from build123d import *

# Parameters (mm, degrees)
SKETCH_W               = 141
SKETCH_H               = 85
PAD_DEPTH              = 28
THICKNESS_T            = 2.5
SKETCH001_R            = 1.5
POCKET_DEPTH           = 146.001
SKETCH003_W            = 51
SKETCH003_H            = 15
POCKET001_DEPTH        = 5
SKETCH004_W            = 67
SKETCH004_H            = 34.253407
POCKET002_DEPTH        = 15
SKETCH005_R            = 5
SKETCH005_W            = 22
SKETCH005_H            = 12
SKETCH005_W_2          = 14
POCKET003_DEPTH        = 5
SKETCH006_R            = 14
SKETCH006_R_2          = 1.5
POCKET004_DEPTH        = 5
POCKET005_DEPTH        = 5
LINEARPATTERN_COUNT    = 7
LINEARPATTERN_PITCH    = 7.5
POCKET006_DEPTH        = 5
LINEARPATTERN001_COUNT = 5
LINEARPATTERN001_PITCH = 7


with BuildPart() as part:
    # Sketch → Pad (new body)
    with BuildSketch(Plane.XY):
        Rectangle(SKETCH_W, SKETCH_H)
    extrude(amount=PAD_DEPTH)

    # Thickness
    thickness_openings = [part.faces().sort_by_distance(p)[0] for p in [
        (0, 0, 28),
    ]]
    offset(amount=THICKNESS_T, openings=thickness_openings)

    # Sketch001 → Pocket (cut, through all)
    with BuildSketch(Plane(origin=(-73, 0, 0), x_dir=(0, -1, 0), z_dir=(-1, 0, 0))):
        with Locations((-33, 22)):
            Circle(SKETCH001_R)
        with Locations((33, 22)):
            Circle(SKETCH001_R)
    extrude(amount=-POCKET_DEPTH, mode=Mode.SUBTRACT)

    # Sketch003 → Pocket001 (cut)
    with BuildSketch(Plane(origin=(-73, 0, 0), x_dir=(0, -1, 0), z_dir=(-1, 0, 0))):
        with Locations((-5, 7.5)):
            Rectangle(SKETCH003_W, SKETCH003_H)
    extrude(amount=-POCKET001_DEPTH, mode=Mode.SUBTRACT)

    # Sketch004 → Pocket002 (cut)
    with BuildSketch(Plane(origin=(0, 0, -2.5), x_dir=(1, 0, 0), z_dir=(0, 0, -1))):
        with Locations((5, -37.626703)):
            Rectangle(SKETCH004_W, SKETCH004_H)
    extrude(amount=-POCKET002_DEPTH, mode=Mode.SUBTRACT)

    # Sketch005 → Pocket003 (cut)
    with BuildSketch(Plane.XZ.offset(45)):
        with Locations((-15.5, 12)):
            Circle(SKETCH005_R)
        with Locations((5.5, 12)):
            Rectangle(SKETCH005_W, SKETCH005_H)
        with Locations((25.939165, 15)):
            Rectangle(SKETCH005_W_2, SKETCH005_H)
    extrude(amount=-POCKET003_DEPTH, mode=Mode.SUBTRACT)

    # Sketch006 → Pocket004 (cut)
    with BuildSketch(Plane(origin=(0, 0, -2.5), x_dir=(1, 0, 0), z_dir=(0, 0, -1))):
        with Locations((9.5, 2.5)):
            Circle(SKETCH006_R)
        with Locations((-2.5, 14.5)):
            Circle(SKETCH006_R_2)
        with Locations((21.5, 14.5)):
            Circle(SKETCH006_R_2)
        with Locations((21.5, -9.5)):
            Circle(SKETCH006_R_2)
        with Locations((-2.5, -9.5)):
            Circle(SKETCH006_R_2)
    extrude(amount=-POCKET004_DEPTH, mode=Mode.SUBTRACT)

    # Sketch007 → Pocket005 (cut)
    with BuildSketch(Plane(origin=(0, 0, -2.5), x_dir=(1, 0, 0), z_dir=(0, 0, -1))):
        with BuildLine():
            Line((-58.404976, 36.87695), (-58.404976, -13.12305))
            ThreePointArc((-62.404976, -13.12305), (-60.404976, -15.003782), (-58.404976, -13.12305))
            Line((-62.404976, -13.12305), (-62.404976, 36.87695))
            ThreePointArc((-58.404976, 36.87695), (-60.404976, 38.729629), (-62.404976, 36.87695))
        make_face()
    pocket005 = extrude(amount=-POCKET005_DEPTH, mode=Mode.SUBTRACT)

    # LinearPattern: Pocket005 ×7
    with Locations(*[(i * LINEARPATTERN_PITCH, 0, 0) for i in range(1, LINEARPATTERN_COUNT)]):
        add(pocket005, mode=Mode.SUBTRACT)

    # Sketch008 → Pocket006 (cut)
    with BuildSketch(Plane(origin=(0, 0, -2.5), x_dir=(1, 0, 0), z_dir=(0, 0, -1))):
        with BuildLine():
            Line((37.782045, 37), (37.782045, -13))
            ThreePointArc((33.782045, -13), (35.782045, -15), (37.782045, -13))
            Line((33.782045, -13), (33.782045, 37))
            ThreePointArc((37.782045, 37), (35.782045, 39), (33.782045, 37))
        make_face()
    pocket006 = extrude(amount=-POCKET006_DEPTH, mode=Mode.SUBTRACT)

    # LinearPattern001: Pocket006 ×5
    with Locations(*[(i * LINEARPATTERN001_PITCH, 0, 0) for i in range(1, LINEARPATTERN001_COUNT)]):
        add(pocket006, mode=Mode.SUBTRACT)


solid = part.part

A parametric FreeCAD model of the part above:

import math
import FreeCAD as App
import Part
import Sketcher
Q = App.Units.Quantity


def faces_at(feature, points):
    """Names of the faces that lie closest to the given points."""
    faces = feature.Shape.Faces
    near = lambda p: min(range(len(faces)), key=lambda i: faces[i].distToShape(Part.Vertex(*p))[0])
    return sorted({f"Face{near(p) + 1}" for p in points})


def add_polygon(sketch, points):
    """Adds a closed chain of lines whose ends are joined by coincident constraints."""
    first, n = sketch.GeometryCount, len(points)
    for a, b in zip(points, points[1:] + points[:1]):
        sketch.addGeometry(Part.LineSegment(App.Vector(*a, 0), App.Vector(*b, 0)), False)
    for i in range(n):
        sketch.addConstraint(Sketcher.Constraint("Coincident", first + i, 2, first + (i + 1) % n, 1))

doc = App.newDocument("Part")
body = doc.addObject("PartDesign::Body", "Body")

# Sketch on XY plane
sketch1 = body.newObject("Sketcher::SketchObject", "Sketch")
sketch1.AttachmentSupport = (doc.getObject("XY_Plane"), [""])
sketch1.MapMode = "FlatFace"
add_polygon(sketch1, [(-70, 42), (-70, -42), (70, -42), (70, 42)])  # lines 0-3
sketch1.addConstraint(Sketcher.Constraint("Vertical", 0))
sketch1.addConstraint(Sketcher.Constraint("Horizontal", 1))
sketch1.addConstraint(Sketcher.Constraint("Vertical", 2))
sketch1.addConstraint(Sketcher.Constraint("Horizontal", 3))
sketch1.addConstraint(Sketcher.Constraint("Symmetric", 0, 2, 2, 2, -1, 1))
sketch1.addConstraint(Sketcher.Constraint("DistanceX", 1, 1, 1, 2, Q("141 mm")))
sketch1.addConstraint(Sketcher.Constraint("DistanceY", 0, 2, 0, 1, Q("85 mm")))
pad1 = body.newObject("PartDesign::Pad", "Pad")
pad1.Profile = sketch1
pad1.Length = 28
doc.recompute()

thickness = body.newObject("PartDesign::Thickness", "Thickness")
thickness.Base = (pad1, faces_at(pad1, [(0, 0, 28)]))
thickness.Value = 2.5
thickness.Reversed = False
thickness.Join = "Arc"

# Sketch on YZ plane
sketch2 = body.newObject("Sketcher::SketchObject", "Sketch001")
sketch2.AttachmentSupport = (doc.getObject("YZ_Plane"), [""])
sketch2.MapMode = "FlatFace"
sketch2.AttachmentOffset = App.Placement(App.Vector(0, 0, -73), App.Rotation())
sketch2.addGeometry(Part.Circle(App.Vector(33, 22, 0), App.Vector(0, 0, 1), 1.5), False)
sketch2.addGeometry(Part.Circle(App.Vector(-33, 22, 0), App.Vector(0, 0, 1), 1.5), False)
sketch2.addConstraint(Sketcher.Constraint("Equal", 0, 1))
sketch2.addConstraint(Sketcher.Constraint("Symmetric", 0, 3, 1, 3, -2))
sketch2.addConstraint(Sketcher.Constraint("Diameter", 0, Q("3 mm")))
sketch2.addConstraint(Sketcher.Constraint("DistanceX", -1, 1, 0, 3, Q("33 mm")))
sketch2.addConstraint(Sketcher.Constraint("DistanceY", -1, 1, 0, 3, Q("22 mm")))
pocket1 = body.newObject("PartDesign::Pocket", "Pocket")
pocket1.Profile = sketch2
pocket1.Type = "ThroughAll"
pocket1.Reversed = True

# Sketch on YZ plane
sketch3 = body.newObject("Sketcher::SketchObject", "Sketch002")
sketch3.AttachmentSupport = (doc.getObject("YZ_Plane"), [""])
sketch3.MapMode = "FlatFace"
sketch3.AttachmentOffset = App.Placement(App.Vector(0, 0, -73), App.Rotation())
add_polygon(sketch3, [(30, 15), (30, 0), (-20, 0), (-20, 15)])  # lines 0-3
sketch3.addConstraint(Sketcher.Constraint("Vertical", 0))
sketch3.addConstraint(Sketcher.Constraint("Horizontal", 1))
sketch3.addConstraint(Sketcher.Constraint("Vertical", 2))
sketch3.addConstraint(Sketcher.Constraint("Horizontal", 3))
sketch3.addConstraint(Sketcher.Constraint("PointOnObject", 0, 2, -1))
sketch3.addConstraint(Sketcher.Constraint("DistanceX", 1, 2, 1, 1, Q("51 mm")))
sketch3.addConstraint(Sketcher.Constraint("DistanceY", 0, 2, 0, 1, Q("15 mm")))
sketch3.addConstraint(Sketcher.Constraint("DistanceX", -1, 1, 0, 2, Q("30.5 mm")))
pocket2 = body.newObject("PartDesign::Pocket", "Pocket001")
pocket2.Profile = sketch3
pocket2.Length = 5
pocket2.Reversed = True

# Sketch on XY plane
sketch4 = body.newObject("Sketcher::SketchObject", "Sketch003")
sketch4.AttachmentSupport = (doc.getObject("XY_Plane"), [""])
sketch4.MapMode = "FlatFace"
sketch4.AttachmentOffset = App.Placement(App.Vector(0, 0, -2.5), App.Rotation())
add_polygon(sketch4, [(-28, 20), (-28, 55), (38, 55), (38, 20)])  # lines 0-3
sketch4.addConstraint(Sketcher.Constraint("Vertical", 0))
sketch4.addConstraint(Sketcher.Constraint("Horizontal", 1))
sketch4.addConstraint(Sketcher.Constraint("Vertical", 2))
sketch4.addConstraint(Sketcher.Constraint("Horizontal", 3))
sketch4.addConstraint(Sketcher.Constraint("DistanceX", 1, 1, 1, 2, Q("67 mm")))
sketch4.addConstraint(Sketcher.Constraint("DistanceX", 0, 2, -1, 1, Q("28.5 mm")))
sketch4.addConstraint(Sketcher.Constraint("DistanceY", -1, 1, 2, 2, Q("20.5 mm")))
sketch4.addConstraint(Sketcher.Constraint("DistanceY", 0, 1, 0, 2, Q("34.253407 mm")))
pocket3 = body.newObject("PartDesign::Pocket", "Pocket002")
pocket3.Profile = sketch4
pocket3.Length = 15
pocket3.Reversed = True

# Sketch on XZ plane
sketch5 = body.newObject("Sketcher::SketchObject", "Sketch004")
sketch5.AttachmentSupport = (doc.getObject("XZ_Plane"), [""])
sketch5.MapMode = "FlatFace"
sketch5.AttachmentOffset = App.Placement(App.Vector(0, 0, 45), App.Rotation())
sketch5.addGeometry(Part.Circle(App.Vector(-16, 12, 0), App.Vector(0, 0, 1), 5), False)  # 0
add_polygon(sketch5, [(-6, 18), (-6, 6), (16, 6), (16, 18)])  # lines 1-4
add_polygon(sketch5, [(19, 21), (19, 9), (33, 9), (33, 21)])  # lines 5-8
sketch5.addConstraint(Sketcher.Constraint("Vertical", 1))
sketch5.addConstraint(Sketcher.Constraint("Horizontal", 2))
sketch5.addConstraint(Sketcher.Constraint("Vertical", 3))
sketch5.addConstraint(Sketcher.Constraint("Horizontal", 4))
sketch5.addConstraint(Sketcher.Constraint("Vertical", 5))
sketch5.addConstraint(Sketcher.Constraint("Horizontal", 6))
sketch5.addConstraint(Sketcher.Constraint("Vertical", 7))
sketch5.addConstraint(Sketcher.Constraint("Horizontal", 8))
sketch5.addConstraint(Sketcher.Constraint("Equal", 3, 5))
sketch5.addConstraint(Sketcher.Constraint("Diameter", 0, Q("10 mm")))
sketch5.addConstraint(Sketcher.Constraint("DistanceX", 2, 1, 2, 2, Q("22 mm")))
sketch5.addConstraint(Sketcher.Constraint("DistanceX", 6, 1, 6, 2, Q("14 mm")))
sketch5.addConstraint(Sketcher.Constraint("DistanceY", 1, 2, 1, 1, Q("12 mm")))
sketch5.addConstraint(Sketcher.Constraint("DistanceY", -1, 1, 0, 3, Q("12 mm")))
sketch5.addConstraint(Sketcher.Constraint("DistanceY", -1, 1, 1, 2, Q("6 mm")))
sketch5.addConstraint(Sketcher.Constraint("DistanceY", -1, 1, 5, 2, Q("9 mm")))
sketch5.addConstraint(Sketcher.Constraint("DistanceX", 0, 3, 1, 2, Q("10 mm")))
sketch5.addConstraint(Sketcher.Constraint("DistanceX", 0, 3, -1, 1, Q("15.5 mm")))
sketch5.addConstraint(Sketcher.Constraint("DistanceX", -1, 1, 5, 2, Q("18.939165 mm")))
pocket4 = body.newObject("PartDesign::Pocket", "Pocket003")
pocket4.Profile = sketch5
pocket4.Length = 5

# Sketch on XY plane
sketch6 = body.newObject("Sketcher::SketchObject", "Sketch005")
sketch6.AttachmentSupport = (doc.getObject("XY_Plane"), [""])
sketch6.MapMode = "FlatFace"
sketch6.AttachmentOffset = App.Placement(App.Vector(0, 0, -2.5), App.Rotation())
sketch6.addGeometry(Part.Circle(App.Vector(9.5, -2.5, 0), App.Vector(0, 0, 1), 14), False)
sketch6.addGeometry(Part.Circle(App.Vector(-2.5, -14.5, 0), App.Vector(0, 0, 1), 1.5), False)
sketch6.addGeometry(Part.Circle(App.Vector(21.5, -14.5, 0), App.Vector(0, 0, 1), 1.5), False)
sketch6.addGeometry(Part.Circle(App.Vector(21.5, 9.5, 0), App.Vector(0, 0, 1), 1.5), False)
sketch6.addGeometry(Part.Circle(App.Vector(-2.5, 9.5, 0), App.Vector(0, 0, 1), 1.5), False)
sketch6.addConstraint(Sketcher.Constraint("Equal", 1, 2))
sketch6.addConstraint(Sketcher.Constraint("Equal", 2, 3))
sketch6.addConstraint(Sketcher.Constraint("Equal", 3, 4))
sketch6.addConstraint(Sketcher.Constraint("Horizontal", 1, 3, 2, 3))
sketch6.addConstraint(Sketcher.Constraint("Horizontal", 3, 3, 4, 3))
sketch6.addConstraint(Sketcher.Constraint("Vertical", 2, 3, 3, 3))
sketch6.addConstraint(Sketcher.Constraint("Vertical", 1, 3, 4, 3))
sketch6.addConstraint(Sketcher.Constraint("Diameter", 0, Q("28 mm")))
sketch6.addConstraint(Sketcher.Constraint("Diameter", 1, Q("3 mm")))
sketch6.addConstraint(Sketcher.Constraint("DistanceX", 1, 3, 0, 3, Q("12 mm")))
sketch6.addConstraint(Sketcher.Constraint("DistanceY", 1, 3, 0, 3, Q("12 mm")))
sketch6.addConstraint(Sketcher.Constraint("DistanceX", 0, 3, 2, 3, Q("12 mm")))
sketch6.addConstraint(Sketcher.Constraint("DistanceY", 0, 3, 3, 3, Q("12 mm")))
sketch6.addConstraint(Sketcher.Constraint("DistanceX", -1, 1, 0, 3, Q("9.5 mm")))
sketch6.addConstraint(Sketcher.Constraint("DistanceY", 0, 3, -1, 1, Q("2.5 mm")))
pocket5 = body.newObject("PartDesign::Pocket", "Pocket004")
pocket5.Profile = sketch6
pocket5.Length = 5
pocket5.Reversed = True

# Sketch on XY plane
sketch7 = body.newObject("Sketcher::SketchObject", "Sketch006")
sketch7.AttachmentSupport = (doc.getObject("XY_Plane"), [""])
sketch7.MapMode = "FlatFace"
sketch7.AttachmentOffset = App.Placement(App.Vector(0, 0, -2.5), App.Rotation())
sketch7.addGeometry(Part.LineSegment(App.Vector(-58.4, 13.1, 0), App.Vector(-58.4, -36.9, 0)), False)
sketch7.addGeometry(Part.ArcOfCircle(Part.Circle(App.Vector(-60.4, -36.7, 0), App.Vector(0, 0, 1), 2), math.radians(-176), math.radians(-4)), False)
sketch7.addGeometry(Part.LineSegment(App.Vector(-62.4, -36.9, 0), App.Vector(-62.4, 13.1, 0)), False)
sketch7.addGeometry(Part.ArcOfCircle(Part.Circle(App.Vector(-60.4, 13, 0), App.Vector(0, 0, 1), 2), math.radians(4), math.radians(176)), False)
sketch7.addConstraint(Sketcher.Constraint("Coincident", 0, 2, 1, 2))
sketch7.addConstraint(Sketcher.Constraint("Coincident", 1, 1, 2, 1))
sketch7.addConstraint(Sketcher.Constraint("Coincident", 2, 2, 3, 2))
sketch7.addConstraint(Sketcher.Constraint("Coincident", 3, 1, 0, 1))
sketch7.addConstraint(Sketcher.Constraint("Vertical", 0))
sketch7.addConstraint(Sketcher.Constraint("Vertical", 2))
sketch7.addConstraint(Sketcher.Constraint("Horizontal", 0, 2, 1, 1))
sketch7.addConstraint(Sketcher.Constraint("Horizontal", 2, 2, 3, 1))
sketch7.addConstraint(Sketcher.Constraint("DistanceY", 0, 2, 0, 1, Q("50 mm")))
sketch7.addConstraint(Sketcher.Constraint("DistanceY", -1, 1, 3, 3, Q("13 mm")))
sketch7.addConstraint(Sketcher.Constraint("DistanceX", 1, 3, 0, 2, Q("2 mm")))
sketch7.addConstraint(Sketcher.Constraint("Radius", 3, Q("2.003782 mm")))
sketch7.addConstraint(Sketcher.Constraint("Radius", 1, Q("2.005857 mm")))
sketch7.addConstraint(Sketcher.Constraint("DistanceX", 1, 3, -1, 1, Q("60.404976 mm")))
pocket6 = body.newObject("PartDesign::Pocket", "Pocket005")
pocket6.Profile = sketch7
pocket6.Length = 5
pocket6.Reversed = True
doc.recompute()

linearpattern = body.newObject("PartDesign::LinearPattern", "LinearPattern")
linearpattern.Originals = [pocket6]
linearpattern.Direction = (doc.getObject("X_Axis"), [""])
linearpattern.Mode = "offset"
linearpattern.Offset = 7.5
linearpattern.Occurrences = 7
body.Tip = linearpattern

# Sketch on XY plane
sketch8 = body.newObject("Sketcher::SketchObject", "Sketch007")
sketch8.AttachmentSupport = (doc.getObject("XY_Plane"), [""])
sketch8.MapMode = "FlatFace"
sketch8.AttachmentOffset = App.Placement(App.Vector(0, 0, -2.5), App.Rotation())
sketch8.addGeometry(Part.LineSegment(App.Vector(37.8, 13, 0), App.Vector(37.8, -37, 0)), False)
sketch8.addGeometry(Part.ArcOfCircle(Part.Circle(App.Vector(35.8, -37, 0), App.Vector(0, 0, 1), 2), math.radians(180), math.radians(360)), False)
sketch8.addGeometry(Part.LineSegment(App.Vector(33.8, -37, 0), App.Vector(33.8, 13, 0)), False)
sketch8.addGeometry(Part.ArcOfCircle(Part.Circle(App.Vector(35.8, 13, 0), App.Vector(0, 0, 1), 2), math.radians(0), math.radians(180)), False)
sketch8.addConstraint(Sketcher.Constraint("Tangent", 0, 2, 1, 2))
sketch8.addConstraint(Sketcher.Constraint("Tangent", 1, 1, 2, 1))
sketch8.addConstraint(Sketcher.Constraint("Tangent", 2, 2, 3, 2))
sketch8.addConstraint(Sketcher.Constraint("Tangent", 3, 1, 0, 1))
sketch8.addConstraint(Sketcher.Constraint("Vertical", 0))
sketch8.addConstraint(Sketcher.Constraint("Vertical", 2))
sketch8.addConstraint(Sketcher.Constraint("Radius", 1, Q("2 mm")))
sketch8.addConstraint(Sketcher.Constraint("DistanceY", 0, 2, 0, 1, Q("50 mm")))
sketch8.addConstraint(Sketcher.Constraint("DistanceY", 1, 3, -1, 1, Q("37 mm")))
sketch8.addConstraint(Sketcher.Constraint("DistanceX", -1, 1, 1, 3, Q("35.782045 mm")))
pocket7 = body.newObject("PartDesign::Pocket", "Pocket006")
pocket7.Profile = sketch8
pocket7.Length = 5
pocket7.Reversed = True
doc.recompute()

linearpattern2 = body.newObject("PartDesign::LinearPattern", "LinearPattern001")
linearpattern2.Originals = [pocket7]
linearpattern2.Direction = (doc.getObject("X_Axis"), [""])
linearpattern2.Mode = "offset"
linearpattern2.Offset = 7
linearpattern2.Occurrences = 5
body.Tip = linearpattern2

doc.recompute()
